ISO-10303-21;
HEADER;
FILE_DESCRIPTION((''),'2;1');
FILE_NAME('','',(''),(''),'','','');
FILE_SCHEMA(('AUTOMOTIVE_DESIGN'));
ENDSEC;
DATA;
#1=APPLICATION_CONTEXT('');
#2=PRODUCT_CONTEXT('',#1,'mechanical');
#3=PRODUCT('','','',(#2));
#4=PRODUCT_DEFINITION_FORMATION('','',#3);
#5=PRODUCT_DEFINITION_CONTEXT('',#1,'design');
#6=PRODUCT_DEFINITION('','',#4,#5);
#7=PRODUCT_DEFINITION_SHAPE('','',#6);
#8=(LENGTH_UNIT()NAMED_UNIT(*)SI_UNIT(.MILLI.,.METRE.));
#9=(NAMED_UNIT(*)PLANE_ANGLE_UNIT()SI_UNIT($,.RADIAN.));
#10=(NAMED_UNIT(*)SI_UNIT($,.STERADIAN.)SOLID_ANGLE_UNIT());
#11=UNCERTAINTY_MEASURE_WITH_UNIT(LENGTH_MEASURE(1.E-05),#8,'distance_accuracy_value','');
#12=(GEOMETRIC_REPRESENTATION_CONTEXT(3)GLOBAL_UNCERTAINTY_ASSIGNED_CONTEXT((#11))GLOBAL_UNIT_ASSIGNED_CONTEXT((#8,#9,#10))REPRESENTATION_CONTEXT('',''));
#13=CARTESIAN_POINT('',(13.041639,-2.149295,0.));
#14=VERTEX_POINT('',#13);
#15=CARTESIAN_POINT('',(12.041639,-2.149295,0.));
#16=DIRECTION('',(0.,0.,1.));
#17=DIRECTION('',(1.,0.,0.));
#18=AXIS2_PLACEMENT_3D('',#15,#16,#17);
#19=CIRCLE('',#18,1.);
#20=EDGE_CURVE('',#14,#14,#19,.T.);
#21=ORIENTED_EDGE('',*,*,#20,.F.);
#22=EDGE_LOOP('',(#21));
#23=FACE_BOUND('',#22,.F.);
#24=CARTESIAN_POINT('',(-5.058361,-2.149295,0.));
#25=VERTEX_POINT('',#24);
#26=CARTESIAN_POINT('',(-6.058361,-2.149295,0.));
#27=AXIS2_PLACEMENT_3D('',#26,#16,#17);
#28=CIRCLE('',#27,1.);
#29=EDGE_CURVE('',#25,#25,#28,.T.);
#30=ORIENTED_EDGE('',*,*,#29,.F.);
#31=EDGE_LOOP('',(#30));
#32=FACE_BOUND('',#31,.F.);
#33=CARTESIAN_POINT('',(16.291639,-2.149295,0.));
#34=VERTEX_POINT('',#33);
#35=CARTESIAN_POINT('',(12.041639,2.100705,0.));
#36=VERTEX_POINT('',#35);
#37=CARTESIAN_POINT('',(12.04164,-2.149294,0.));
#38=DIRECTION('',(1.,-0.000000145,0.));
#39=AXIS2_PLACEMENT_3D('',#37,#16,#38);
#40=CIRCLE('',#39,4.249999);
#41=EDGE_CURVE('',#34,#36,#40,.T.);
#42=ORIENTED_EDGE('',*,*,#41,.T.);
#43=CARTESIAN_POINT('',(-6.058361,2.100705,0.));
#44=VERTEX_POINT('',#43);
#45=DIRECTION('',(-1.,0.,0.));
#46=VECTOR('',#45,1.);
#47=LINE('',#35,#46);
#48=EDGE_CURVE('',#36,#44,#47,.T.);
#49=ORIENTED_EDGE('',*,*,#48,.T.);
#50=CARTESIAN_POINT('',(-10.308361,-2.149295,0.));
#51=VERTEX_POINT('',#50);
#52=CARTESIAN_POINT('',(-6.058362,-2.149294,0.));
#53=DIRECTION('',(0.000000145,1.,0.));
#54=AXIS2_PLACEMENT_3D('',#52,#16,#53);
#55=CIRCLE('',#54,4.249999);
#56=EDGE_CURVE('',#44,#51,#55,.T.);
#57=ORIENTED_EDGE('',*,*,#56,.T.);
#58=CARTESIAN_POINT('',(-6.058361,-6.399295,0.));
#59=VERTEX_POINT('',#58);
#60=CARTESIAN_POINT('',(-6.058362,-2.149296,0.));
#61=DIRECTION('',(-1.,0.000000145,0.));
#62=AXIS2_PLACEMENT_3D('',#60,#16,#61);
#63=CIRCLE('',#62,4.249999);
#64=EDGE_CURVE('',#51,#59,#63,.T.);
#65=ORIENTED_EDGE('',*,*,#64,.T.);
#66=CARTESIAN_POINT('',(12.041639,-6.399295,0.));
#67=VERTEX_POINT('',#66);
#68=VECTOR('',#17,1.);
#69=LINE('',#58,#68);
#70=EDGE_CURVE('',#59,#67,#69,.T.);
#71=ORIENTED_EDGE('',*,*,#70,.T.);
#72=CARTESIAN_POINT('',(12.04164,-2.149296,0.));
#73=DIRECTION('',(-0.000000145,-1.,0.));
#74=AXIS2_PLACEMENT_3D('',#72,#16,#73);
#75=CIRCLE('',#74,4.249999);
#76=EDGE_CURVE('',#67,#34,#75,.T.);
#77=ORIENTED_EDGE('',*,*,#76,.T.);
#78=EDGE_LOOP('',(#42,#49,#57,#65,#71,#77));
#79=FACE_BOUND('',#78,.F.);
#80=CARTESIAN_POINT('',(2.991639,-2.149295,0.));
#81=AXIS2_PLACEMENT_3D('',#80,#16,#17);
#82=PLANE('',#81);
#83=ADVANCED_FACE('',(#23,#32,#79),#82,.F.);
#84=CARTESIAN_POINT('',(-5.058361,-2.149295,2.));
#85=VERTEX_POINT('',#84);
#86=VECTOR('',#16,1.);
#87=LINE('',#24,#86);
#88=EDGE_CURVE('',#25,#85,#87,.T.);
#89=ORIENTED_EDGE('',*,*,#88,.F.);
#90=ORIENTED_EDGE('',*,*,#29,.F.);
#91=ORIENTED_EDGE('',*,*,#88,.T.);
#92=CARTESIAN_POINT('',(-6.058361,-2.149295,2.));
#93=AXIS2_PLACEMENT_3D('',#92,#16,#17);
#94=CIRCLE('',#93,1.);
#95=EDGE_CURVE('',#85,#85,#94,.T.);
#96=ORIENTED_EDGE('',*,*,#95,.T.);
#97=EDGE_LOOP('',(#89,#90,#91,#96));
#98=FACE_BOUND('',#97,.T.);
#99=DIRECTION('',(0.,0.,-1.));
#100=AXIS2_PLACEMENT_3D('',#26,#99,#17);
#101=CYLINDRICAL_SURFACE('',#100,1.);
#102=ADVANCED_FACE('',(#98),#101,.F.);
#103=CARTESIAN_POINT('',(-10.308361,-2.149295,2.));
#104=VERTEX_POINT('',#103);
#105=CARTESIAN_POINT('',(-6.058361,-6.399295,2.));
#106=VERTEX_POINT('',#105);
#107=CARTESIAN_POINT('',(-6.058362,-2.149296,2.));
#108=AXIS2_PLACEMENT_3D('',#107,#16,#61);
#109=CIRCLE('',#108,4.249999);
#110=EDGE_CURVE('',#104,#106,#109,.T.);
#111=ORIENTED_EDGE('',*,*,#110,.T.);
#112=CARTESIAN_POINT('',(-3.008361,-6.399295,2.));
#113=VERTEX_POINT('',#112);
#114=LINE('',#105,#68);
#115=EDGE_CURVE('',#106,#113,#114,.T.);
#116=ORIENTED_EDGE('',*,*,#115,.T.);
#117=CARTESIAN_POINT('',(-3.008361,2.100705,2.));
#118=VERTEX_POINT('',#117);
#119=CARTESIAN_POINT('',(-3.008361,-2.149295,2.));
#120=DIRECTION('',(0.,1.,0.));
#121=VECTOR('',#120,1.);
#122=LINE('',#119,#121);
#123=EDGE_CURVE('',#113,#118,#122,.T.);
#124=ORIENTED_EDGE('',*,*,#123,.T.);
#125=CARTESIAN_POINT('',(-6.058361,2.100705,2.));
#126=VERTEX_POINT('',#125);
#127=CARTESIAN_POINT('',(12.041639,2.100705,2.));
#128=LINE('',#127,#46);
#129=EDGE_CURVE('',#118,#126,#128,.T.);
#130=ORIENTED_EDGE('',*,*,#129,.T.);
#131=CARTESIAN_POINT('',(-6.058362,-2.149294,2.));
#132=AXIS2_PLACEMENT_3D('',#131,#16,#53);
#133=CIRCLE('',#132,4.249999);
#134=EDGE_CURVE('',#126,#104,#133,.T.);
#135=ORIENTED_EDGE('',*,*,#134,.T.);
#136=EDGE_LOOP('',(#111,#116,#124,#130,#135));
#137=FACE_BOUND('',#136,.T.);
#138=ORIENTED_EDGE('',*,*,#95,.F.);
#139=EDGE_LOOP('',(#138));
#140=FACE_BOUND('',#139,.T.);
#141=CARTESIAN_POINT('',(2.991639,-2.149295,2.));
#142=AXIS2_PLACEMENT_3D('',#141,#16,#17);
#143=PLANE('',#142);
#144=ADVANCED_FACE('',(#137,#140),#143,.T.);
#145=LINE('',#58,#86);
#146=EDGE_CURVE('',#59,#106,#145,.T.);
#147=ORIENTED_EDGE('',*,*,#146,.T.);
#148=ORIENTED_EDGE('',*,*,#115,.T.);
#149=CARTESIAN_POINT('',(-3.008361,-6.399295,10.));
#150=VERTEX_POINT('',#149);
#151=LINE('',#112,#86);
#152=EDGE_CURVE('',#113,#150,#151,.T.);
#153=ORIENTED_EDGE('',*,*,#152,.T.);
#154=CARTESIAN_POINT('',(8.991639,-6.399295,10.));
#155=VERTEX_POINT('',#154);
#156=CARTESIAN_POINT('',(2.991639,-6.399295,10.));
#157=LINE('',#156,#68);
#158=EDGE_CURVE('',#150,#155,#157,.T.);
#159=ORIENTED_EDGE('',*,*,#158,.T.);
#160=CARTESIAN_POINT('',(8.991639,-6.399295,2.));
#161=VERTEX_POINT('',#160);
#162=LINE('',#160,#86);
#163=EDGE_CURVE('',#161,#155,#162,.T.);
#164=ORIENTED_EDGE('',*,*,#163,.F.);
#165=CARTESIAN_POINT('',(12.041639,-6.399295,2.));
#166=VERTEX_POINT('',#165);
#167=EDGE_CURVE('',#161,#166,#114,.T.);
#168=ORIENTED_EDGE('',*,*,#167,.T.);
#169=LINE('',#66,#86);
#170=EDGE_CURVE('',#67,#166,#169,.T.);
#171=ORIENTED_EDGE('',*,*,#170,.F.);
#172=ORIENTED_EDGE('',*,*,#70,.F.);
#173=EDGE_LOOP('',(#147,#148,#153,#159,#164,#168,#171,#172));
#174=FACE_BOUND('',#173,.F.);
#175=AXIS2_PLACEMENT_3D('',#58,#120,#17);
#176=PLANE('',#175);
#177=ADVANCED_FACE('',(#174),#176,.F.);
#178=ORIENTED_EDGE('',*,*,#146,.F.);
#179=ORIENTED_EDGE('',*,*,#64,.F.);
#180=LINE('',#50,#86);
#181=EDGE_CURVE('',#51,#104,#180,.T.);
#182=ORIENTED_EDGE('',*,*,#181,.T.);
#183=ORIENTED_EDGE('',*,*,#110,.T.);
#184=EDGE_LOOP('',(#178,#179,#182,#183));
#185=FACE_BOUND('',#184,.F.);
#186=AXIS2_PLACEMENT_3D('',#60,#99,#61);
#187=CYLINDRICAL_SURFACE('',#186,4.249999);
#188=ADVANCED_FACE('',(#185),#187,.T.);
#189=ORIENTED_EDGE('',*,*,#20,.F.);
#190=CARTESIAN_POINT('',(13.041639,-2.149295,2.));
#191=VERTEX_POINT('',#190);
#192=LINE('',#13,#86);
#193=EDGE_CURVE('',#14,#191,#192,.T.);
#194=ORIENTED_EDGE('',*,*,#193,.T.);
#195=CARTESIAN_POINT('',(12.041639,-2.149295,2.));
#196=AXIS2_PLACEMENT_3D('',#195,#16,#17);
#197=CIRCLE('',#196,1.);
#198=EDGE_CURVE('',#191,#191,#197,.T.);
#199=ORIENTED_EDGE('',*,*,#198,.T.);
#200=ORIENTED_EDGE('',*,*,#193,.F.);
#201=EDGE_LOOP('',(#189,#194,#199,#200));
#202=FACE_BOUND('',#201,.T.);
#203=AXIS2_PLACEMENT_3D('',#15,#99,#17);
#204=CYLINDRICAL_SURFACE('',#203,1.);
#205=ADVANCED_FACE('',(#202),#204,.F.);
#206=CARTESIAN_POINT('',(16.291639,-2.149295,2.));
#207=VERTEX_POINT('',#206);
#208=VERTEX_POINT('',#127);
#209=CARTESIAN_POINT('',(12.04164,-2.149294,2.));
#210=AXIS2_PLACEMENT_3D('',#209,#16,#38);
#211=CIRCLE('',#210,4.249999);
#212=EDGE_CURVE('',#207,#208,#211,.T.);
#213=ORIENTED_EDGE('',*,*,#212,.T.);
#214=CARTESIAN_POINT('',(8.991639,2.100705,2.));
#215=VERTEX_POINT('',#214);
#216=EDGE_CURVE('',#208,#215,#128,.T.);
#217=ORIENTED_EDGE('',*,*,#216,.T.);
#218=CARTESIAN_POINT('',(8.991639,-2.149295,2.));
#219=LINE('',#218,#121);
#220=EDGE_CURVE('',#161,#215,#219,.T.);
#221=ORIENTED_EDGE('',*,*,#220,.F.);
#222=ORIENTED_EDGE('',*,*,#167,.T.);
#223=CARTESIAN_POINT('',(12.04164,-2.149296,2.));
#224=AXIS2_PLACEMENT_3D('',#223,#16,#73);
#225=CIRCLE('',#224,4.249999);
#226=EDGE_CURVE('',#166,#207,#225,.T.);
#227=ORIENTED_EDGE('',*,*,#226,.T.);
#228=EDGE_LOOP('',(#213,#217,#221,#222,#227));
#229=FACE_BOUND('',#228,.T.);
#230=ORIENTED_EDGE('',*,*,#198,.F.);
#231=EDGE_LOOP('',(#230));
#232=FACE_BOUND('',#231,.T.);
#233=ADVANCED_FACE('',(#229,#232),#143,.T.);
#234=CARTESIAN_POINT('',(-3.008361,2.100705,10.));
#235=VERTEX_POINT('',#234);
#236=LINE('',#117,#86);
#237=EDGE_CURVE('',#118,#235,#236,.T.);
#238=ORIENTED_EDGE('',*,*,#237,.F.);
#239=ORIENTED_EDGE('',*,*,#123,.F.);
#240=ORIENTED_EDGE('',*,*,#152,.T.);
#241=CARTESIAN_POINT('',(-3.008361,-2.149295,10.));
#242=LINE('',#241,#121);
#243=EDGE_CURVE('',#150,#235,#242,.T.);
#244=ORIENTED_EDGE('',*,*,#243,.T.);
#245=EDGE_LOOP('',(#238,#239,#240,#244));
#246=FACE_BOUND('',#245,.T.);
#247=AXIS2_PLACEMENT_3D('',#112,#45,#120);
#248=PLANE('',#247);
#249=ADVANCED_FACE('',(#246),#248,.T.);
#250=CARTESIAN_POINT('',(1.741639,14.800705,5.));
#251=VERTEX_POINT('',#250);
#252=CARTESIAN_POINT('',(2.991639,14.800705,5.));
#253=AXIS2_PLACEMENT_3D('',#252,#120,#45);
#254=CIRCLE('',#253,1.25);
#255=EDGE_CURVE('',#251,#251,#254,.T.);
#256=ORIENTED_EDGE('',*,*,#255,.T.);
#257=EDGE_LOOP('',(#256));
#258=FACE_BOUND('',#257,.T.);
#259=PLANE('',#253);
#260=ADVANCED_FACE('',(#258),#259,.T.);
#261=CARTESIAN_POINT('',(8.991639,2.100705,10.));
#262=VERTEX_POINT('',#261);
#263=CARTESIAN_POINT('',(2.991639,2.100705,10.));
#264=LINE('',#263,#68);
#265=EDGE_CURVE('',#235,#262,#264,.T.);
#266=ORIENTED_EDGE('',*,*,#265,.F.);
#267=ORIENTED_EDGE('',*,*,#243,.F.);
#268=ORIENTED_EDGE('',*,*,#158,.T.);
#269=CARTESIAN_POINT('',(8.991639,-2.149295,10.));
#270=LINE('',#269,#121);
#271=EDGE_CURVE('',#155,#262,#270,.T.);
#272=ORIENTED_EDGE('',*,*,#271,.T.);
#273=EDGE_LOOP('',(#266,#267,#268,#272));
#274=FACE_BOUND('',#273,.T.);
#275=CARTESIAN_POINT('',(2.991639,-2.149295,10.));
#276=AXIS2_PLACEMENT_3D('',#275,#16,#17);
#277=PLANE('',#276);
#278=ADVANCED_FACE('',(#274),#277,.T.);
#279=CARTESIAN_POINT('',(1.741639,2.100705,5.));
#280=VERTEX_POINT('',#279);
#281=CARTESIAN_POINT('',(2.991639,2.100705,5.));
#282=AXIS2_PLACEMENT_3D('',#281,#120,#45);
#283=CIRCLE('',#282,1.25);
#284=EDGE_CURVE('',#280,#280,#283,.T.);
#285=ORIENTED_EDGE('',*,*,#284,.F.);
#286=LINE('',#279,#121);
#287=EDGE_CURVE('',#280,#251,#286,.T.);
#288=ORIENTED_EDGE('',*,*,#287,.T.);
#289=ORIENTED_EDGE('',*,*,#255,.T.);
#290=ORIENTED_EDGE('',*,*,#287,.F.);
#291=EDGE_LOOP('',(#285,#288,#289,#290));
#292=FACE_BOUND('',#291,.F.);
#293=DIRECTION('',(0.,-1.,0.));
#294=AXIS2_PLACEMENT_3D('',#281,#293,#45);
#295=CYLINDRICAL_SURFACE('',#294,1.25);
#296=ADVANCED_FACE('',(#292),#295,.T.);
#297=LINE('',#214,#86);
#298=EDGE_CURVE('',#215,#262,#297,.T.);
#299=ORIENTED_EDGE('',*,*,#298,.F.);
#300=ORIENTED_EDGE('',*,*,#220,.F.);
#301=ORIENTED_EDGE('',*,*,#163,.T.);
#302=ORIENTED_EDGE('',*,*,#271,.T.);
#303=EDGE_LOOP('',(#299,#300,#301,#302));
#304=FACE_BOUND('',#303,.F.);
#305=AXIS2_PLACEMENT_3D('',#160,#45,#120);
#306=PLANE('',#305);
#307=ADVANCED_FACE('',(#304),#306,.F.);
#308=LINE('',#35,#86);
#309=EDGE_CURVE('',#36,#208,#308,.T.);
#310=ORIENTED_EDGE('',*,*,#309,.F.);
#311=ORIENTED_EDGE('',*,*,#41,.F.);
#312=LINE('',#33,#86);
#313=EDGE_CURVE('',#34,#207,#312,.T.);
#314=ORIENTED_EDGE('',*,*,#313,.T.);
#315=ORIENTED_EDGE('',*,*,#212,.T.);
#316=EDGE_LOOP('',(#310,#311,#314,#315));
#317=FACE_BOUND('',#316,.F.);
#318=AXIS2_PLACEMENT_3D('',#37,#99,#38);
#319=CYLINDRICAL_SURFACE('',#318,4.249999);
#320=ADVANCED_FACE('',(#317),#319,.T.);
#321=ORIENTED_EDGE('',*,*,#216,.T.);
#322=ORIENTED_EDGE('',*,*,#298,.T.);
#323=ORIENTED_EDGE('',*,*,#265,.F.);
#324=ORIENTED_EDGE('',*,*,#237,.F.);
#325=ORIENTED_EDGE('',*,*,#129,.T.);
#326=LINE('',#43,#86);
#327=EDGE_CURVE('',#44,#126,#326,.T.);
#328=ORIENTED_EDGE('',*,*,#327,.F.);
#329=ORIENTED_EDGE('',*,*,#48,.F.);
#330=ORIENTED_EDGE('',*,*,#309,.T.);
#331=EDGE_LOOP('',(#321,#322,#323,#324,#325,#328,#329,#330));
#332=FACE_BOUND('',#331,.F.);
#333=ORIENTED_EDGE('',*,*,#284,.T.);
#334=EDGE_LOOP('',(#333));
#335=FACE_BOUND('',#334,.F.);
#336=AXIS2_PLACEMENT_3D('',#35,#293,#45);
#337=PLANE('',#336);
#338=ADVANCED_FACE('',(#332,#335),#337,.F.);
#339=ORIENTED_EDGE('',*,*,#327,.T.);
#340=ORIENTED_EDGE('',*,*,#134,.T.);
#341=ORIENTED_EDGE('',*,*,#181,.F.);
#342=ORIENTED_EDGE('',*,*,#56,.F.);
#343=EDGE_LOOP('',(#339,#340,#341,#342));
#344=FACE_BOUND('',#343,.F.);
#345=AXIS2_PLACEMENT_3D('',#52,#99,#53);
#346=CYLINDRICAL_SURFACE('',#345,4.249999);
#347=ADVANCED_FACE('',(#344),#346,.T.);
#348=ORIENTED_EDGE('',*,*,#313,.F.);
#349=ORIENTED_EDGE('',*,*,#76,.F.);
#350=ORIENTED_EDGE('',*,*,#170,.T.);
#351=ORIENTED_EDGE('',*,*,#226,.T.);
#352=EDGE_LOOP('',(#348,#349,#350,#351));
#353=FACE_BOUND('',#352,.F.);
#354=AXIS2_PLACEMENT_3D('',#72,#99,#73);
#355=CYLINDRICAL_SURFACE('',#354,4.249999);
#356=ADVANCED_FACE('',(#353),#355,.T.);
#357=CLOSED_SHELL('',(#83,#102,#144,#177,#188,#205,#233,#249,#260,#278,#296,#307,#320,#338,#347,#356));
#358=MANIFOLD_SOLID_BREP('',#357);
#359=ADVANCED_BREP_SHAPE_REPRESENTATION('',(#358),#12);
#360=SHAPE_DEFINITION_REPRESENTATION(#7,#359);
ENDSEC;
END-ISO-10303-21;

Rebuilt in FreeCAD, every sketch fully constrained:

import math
import FreeCAD as App
import Part
import Sketcher

V = App.Vector

doc = App.newDocument("Part")
body = doc.addObject("PartDesign::Body", "Body")

sketch1 = body.newObject("Sketcher::SketchObject", "Sketch")
sketch1.AttachmentSupport = (doc.getObject("XY_Plane"), [""])
sketch1.MapMode = "FlatFace"
sketch1.addGeometry([
    Part.ArcOfCircle(Part.Circle(V(-6.1, -2.1, 0), V(0, 0, 1), 4.2), math.radians(180), math.radians(270)),
    Part.LineSegment(V(-6.1, -6.4, 0), V(12, -6.4, 0)),
    Part.ArcOfCircle(Part.Circle(V(12, -2.1, 0), V(0, 0, 1), 4.2), math.radians(-90), math.radians(0)),
    Part.ArcOfCircle(Part.Circle(V(12, -2.1, 0), V(0, 0, 1), 4.2), math.radians(0), math.radians(90)),
    Part.LineSegment(V(12, 2.1, 0), V(-6.1, 2.1, 0)),
    Part.ArcOfCircle(Part.Circle(V(-6.1, -2.1, 0), V(0, 0, 1), 4.2), math.radians(90), math.radians(180)),
    Part.Circle(V(-6.1, -2.1, 0), V(0, 0, 1), 1),
    Part.Circle(V(12, -2.1, 0), V(0, 0, 1), 1),
], False)
sketch1.addConstraint([
    Sketcher.Constraint("Tangent", 0, 2, 1, 1),
    Sketcher.Constraint("Tangent", 1, 2, 2, 1),
    Sketcher.Constraint("Tangent", 2, 2, 3, 1),
    Sketcher.Constraint("Tangent", 3, 2, 4, 1),
    Sketcher.Constraint("Tangent", 4, 2, 5, 1),
    Sketcher.Constraint("Tangent", 5, 2, 0, 1),
    Sketcher.Constraint("Horizontal", 1),
    Sketcher.Constraint("Horizontal", 4),
    Sketcher.Constraint("Coincident", 6, 3, 0, 3),
    Sketcher.Constraint("Coincident", 7, 3, 2, 3),
    Sketcher.Constraint("Equal", 0, 2),
    Sketcher.Constraint("Equal", 2, 3),
    Sketcher.Constraint("Equal", 6, 7),
    Sketcher.Constraint("Horizontal", 7, 3, 2, 2),
    Sketcher.Constraint("Horizontal", 2, 2, 5, 2),
    Sketcher.Constraint("Diameter", 6, 2.0),
    Sketcher.Constraint("Radius", 0, 4.249999),
    Sketcher.Constraint("DistanceX", 1, 1, 1, 2, 18.1),
    Sketcher.Constraint("DistanceX", 0, 3, -1, 1, 6.058362),
    Sketcher.Constraint("DistanceY", 0, 3, -1, 1, 2.149296),
])
pad1 = body.newObject("PartDesign::Pad", "Pad")
pad1.Profile = sketch1
pad1.Length = 2

sketch2 = body.newObject("Sketcher::SketchObject", "Sketch001")
sketch2.AttachmentSupport = (doc.getObject("XY_Plane"), [""])
sketch2.MapMode = "FlatFace"
sketch2.AttachmentOffset = App.Placement(V(0, 0, 2), App.Rotation())
sketch2.addGeometry([
    Part.LineSegment(V(-3, 2, 0), V(-3, -6, 0)),
    Part.LineSegment(V(-3, -6, 0), V(9, -6, 0)),
    Part.LineSegment(V(9, -6, 0), V(9, 2, 0)),
    Part.LineSegment(V(9, 2, 0), V(-3, 2, 0)),
], False)
sketch2.addConstraint([
    Sketcher.Constraint("Coincident", 0, 2, 1, 1),
    Sketcher.Constraint("Coincident", 1, 2, 2, 1),
    Sketcher.Constraint("Coincident", 2, 2, 3, 1),
    Sketcher.Constraint("Coincident", 3, 2, 0, 1),
    Sketcher.Constraint("Vertical", 0),
    Sketcher.Constraint("Horizontal", 1),
    Sketcher.Constraint("Vertical", 2),
    Sketcher.Constraint("Horizontal", 3),
    Sketcher.Constraint("DistanceX", 1, 1, 1, 2, 12.0),
    Sketcher.Constraint("DistanceY", 0, 2, 0, 1, 8.5),
    Sketcher.Constraint("DistanceX", 0, 2, -1, 1, 3.008361),
    Sketcher.Constraint("DistanceY", 0, 2, -1, 1, 6.399295),
])
pad2 = body.newObject("PartDesign::Pad", "Pad001")
pad2.Profile = sketch2
pad2.Length = 8

sketch3 = body.newObject("Sketcher::SketchObject", "Sketch002")
sketch3.AttachmentSupport = (doc.getObject("XZ_Plane"), [""])
sketch3.MapMode = "FlatFace"
sketch3.AttachmentOffset = App.Placement(V(0, 0, -2.100705), App.Rotation())
sketch3.addGeometry(Part.Circle(V(3, 5, 0), V(0, 0, 1), 1.2), False)
sketch3.addConstraint([
    Sketcher.Constraint("Diameter", 0, 2.5),
    Sketcher.Constraint("DistanceY", -1, 1, 0, 3, 5.0),
    Sketcher.Constraint("DistanceX", -1, 1, 0, 3, 2.991639),
])
pad3 = body.newObject("PartDesign::Pad", "Pad002")
pad3.Profile = sketch3
pad3.Length = 12.7
pad3.Reversed = True

doc.recompute()
